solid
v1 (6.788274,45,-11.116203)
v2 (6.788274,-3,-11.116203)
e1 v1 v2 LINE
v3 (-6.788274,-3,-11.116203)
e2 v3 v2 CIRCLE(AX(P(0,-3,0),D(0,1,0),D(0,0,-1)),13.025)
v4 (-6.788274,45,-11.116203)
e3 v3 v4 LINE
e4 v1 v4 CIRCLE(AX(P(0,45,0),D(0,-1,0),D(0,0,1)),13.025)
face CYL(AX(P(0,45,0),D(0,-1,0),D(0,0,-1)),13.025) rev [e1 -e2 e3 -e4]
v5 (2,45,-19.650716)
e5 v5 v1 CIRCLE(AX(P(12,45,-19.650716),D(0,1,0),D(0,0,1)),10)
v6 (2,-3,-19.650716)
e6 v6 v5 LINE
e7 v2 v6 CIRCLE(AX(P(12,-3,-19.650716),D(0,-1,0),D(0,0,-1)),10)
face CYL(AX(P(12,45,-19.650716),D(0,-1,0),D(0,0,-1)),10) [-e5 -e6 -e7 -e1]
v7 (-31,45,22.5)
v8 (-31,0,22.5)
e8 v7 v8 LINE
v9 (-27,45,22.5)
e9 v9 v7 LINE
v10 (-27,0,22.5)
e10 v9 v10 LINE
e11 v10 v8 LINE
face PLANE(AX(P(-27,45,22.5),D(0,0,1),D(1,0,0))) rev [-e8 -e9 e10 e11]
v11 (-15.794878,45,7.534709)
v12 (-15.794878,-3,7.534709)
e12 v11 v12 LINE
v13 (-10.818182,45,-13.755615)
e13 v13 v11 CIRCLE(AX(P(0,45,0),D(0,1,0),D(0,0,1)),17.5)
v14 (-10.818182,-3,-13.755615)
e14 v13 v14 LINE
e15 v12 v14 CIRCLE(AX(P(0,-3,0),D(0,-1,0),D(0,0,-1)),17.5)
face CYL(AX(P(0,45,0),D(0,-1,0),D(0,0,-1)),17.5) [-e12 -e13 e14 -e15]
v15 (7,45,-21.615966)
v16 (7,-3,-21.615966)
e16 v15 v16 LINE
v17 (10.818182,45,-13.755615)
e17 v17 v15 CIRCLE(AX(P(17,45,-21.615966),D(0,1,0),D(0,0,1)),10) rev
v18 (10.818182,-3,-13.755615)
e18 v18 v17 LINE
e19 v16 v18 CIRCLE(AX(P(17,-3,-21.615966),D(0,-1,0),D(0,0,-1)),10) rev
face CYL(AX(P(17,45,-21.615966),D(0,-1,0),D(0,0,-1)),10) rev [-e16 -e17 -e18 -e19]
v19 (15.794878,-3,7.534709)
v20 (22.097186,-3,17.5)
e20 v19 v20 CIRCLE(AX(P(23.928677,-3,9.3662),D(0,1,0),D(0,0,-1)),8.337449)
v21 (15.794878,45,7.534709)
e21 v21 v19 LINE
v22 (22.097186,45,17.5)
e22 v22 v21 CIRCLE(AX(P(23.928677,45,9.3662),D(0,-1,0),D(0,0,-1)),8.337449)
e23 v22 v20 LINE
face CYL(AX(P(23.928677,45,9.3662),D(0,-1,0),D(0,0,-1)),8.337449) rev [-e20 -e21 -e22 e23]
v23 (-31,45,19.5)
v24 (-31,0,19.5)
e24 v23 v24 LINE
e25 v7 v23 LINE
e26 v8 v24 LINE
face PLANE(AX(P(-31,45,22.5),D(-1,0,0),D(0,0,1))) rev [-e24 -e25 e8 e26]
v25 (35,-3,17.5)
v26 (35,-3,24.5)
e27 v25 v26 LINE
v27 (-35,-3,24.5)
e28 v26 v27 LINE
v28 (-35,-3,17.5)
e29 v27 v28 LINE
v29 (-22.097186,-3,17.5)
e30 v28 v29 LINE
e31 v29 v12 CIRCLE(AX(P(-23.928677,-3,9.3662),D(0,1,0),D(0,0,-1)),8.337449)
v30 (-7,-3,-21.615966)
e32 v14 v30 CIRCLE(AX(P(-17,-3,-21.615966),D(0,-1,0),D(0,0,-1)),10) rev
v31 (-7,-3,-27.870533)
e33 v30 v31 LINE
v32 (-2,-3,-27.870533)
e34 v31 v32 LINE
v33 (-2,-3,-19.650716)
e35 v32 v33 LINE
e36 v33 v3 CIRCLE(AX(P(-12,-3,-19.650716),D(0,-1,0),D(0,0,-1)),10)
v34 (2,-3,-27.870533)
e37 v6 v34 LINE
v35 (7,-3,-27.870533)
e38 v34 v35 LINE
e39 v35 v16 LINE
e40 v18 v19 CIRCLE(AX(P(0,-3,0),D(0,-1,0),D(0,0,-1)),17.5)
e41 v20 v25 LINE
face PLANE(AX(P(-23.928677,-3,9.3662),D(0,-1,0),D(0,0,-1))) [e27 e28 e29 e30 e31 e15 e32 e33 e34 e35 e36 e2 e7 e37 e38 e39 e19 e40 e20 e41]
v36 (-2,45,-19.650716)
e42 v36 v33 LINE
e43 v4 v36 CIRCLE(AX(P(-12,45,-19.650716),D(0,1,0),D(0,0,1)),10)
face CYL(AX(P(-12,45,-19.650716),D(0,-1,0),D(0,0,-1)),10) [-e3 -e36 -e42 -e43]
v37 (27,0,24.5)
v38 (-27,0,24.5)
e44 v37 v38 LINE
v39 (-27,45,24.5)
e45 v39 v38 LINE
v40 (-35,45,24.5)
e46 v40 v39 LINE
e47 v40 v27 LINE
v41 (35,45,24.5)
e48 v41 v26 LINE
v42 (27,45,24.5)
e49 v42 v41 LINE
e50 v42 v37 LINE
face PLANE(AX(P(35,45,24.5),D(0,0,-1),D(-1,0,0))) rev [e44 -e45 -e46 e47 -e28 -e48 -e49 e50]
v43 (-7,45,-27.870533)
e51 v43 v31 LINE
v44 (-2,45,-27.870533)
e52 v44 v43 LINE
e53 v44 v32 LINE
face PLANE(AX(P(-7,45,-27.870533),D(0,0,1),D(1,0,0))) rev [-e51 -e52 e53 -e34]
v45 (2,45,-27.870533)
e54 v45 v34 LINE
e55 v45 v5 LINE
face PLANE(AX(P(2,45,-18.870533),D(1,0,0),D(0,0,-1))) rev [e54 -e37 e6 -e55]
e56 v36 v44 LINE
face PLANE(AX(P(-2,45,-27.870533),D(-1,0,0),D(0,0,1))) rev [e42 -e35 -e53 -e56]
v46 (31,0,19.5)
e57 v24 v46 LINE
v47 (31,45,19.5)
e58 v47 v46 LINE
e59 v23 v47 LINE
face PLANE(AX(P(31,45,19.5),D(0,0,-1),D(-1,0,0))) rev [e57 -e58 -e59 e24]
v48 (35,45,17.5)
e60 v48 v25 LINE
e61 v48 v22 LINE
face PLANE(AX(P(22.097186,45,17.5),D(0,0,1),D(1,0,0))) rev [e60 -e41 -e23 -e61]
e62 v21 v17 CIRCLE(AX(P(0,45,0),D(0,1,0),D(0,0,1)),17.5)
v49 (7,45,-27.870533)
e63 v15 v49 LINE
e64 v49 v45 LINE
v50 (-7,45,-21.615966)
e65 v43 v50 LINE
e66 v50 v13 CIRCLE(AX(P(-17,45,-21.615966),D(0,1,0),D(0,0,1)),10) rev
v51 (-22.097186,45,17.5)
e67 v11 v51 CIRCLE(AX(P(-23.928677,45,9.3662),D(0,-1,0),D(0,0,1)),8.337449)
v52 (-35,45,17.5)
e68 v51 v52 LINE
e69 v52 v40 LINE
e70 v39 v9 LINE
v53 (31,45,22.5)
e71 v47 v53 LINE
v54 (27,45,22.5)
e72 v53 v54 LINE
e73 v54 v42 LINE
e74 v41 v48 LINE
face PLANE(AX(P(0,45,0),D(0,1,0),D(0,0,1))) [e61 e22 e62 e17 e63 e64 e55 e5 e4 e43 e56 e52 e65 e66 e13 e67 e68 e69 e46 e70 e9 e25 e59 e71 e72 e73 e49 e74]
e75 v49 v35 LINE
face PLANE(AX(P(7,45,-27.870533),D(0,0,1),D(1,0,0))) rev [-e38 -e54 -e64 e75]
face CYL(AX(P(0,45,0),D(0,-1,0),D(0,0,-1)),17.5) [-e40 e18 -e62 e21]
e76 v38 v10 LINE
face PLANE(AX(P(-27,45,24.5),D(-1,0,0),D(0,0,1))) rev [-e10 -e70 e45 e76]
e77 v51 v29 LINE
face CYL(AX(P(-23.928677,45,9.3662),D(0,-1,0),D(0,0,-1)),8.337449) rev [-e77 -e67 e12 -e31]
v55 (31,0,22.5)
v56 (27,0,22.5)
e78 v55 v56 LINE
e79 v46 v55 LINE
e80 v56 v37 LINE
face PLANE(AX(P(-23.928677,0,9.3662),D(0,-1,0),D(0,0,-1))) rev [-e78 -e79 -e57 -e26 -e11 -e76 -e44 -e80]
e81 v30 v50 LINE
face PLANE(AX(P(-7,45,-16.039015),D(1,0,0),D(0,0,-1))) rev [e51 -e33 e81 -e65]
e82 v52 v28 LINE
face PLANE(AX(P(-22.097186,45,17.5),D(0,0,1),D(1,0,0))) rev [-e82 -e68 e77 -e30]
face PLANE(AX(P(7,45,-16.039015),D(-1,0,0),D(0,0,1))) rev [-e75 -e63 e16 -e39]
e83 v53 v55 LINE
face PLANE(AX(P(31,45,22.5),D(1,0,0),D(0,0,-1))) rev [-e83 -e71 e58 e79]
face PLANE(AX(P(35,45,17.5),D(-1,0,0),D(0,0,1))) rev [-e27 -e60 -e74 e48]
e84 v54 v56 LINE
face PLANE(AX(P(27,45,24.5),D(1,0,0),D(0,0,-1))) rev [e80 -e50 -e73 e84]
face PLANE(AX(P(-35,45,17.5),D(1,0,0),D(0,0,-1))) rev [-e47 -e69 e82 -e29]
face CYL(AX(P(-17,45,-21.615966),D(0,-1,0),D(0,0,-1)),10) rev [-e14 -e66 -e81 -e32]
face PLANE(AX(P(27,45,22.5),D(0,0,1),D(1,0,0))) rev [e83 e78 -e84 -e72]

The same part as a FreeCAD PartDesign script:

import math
import FreeCAD as App
import Part
import Sketcher
from FreeCAD import Vector


def edges_at(feature, points):
    """Names of the edges that pass closest to the given points."""
    edges = feature.Shape.Edges
    near = lambda p: min(range(len(edges)), key=lambda i: edges[i].distToShape(Part.Vertex(*p))[0])
    return sorted({f"Edge{near(p) + 1}" for p in points})

doc = App.newDocument("Part")
body = doc.addObject("PartDesign::Body", "Body")

# Sketch on XZ plane
sketch1 = body.newObject("Sketcher::SketchObject", "Sketch")
sketch1.AttachmentSupport = (doc.getObject("XZ_Plane"), [""])
sketch1.MapMode = "FlatFace"
sketch1.addGeometry(Part.LineSegment(Vector(-7, -27.870533, 0), Vector(-7, -16.039015, 0)), False)
sketch1.addGeometry(Part.ArcOfCircle(Part.Circle(Vector(0, 0, 0), Vector(0, 0, 1), 17.5), math.radians(154.497225), math.radians(246.421822)), False)
sketch1.addGeometry(Part.ArcOfCircle(Part.Circle(Vector(-23.928677, 9.3662, 0), Vector(0, 0, 1), 8.337449), math.radians(-12.689678), math.radians(77.310322)), False)
sketch1.addGeometry(Part.LineSegment(Vector(-22.097186, 17.5, 0), Vector(-35, 17.5, 0)), False)
sketch1.addGeometry(Part.LineSegment(Vector(-35, 17.5, 0), Vector(-35, 24.5, 0)), False)
sketch1.addGeometry(Part.LineSegment(Vector(-35, 24.5, 0), Vector(-27, 24.5, 0)), False)
sketch1.addGeometry(Part.LineSegment(Vector(-27, 24.5, 0), Vector(-27, 22.5, 0)), False)
sketch1.addGeometry(Part.LineSegment(Vector(-27, 22.5, 0), Vector(-31, 22.5, 0)), False)
sketch1.addGeometry(Part.LineSegment(Vector(-31, 22.5, 0), Vector(-31, 19.5, 0)), False)
sketch1.addGeometry(Part.LineSegment(Vector(-31, 19.5, 0), Vector(31, 19.5, 0)), False)
sketch1.addGeometry(Part.LineSegment(Vector(31, 19.5, 0), Vector(31, 22.5, 0)), False)
sketch1.addGeometry(Part.LineSegment(Vector(31, 22.5, 0), Vector(27, 22.5, 0)), False)
sketch1.addGeometry(Part.LineSegment(Vector(27, 22.5, 0), Vector(27, 24.5, 0)), False)
sketch1.addGeometry(Part.LineSegment(Vector(27, 24.5, 0), Vector(35, 24.5, 0)), False)
sketch1.addGeometry(Part.LineSegment(Vector(35, 24.5, 0), Vector(35, 17.5, 0)), False)
sketch1.addGeometry(Part.LineSegment(Vector(35, 17.5, 0), Vector(22.097186, 17.5, 0)), False)
sketch1.addGeometry(Part.ArcOfCircle(Part.Circle(Vector(23.928677, 9.3662, 0), Vector(0, 0, 1), 8.337449), math.radians(102.689678), math.radians(192.689678)), False)
sketch1.addGeometry(Part.ArcOfCircle(Part.Circle(Vector(0, 0, 0), Vector(0, 0, 1), 17.5), math.radians(-66.421822), math.radians(25.502775)), False)
sketch1.addGeometry(Part.LineSegment(Vector(7, -16.039015, 0), Vector(7, -27.870533, 0)), False)
sketch1.addGeometry(Part.LineSegment(Vector(7, -27.870533, 0), Vector(2, -27.870533, 0)), False)
sketch1.addGeometry(Part.LineSegment(Vector(2, -27.870533, 0), Vector(2, -12.870533, 0)), False)
sketch1.addGeometry(Part.ArcOfCircle(Part.Circle(Vector(0, 0, 0), Vector(0, 0, 1), 13.025), math.radians(-81.167239), math.radians(261.167239)), False)
sketch1.addGeometry(Part.LineSegment(Vector(-2, -12.870533, 0), Vector(-2, -27.870533, 0)), False)
sketch1.addGeometry(Part.LineSegment(Vector(-2, -27.870533, 0), Vector(-7, -27.870533, 0)), False)
sketch1.addConstraint(Sketcher.Constraint("Coincident", 0, 2, 1, 2))
sketch1.addConstraint(Sketcher.Constraint("Coincident", 1, 1, 2, 1))
sketch1.addConstraint(Sketcher.Constraint("Coincident", 2, 2, 3, 1))
sketch1.addConstraint(Sketcher.Constraint("Coincident", 3, 2, 4, 1))
sketch1.addConstraint(Sketcher.Constraint("Coincident", 4, 2, 5, 1))
sketch1.addConstraint(Sketcher.Constraint("Coincident", 5, 2, 6, 1))
sketch1.addConstraint(Sketcher.Constraint("Coincident", 6, 2, 7, 1))
sketch1.addConstraint(Sketcher.Constraint("Coincident", 7, 2, 8, 1))
sketch1.addConstraint(Sketcher.Constraint("Coincident", 8, 2, 9, 1))
sketch1.addConstraint(Sketcher.Constraint("Coincident", 9, 2, 10, 1))
sketch1.addConstraint(Sketcher.Constraint("Coincident", 10, 2, 11, 1))
sketch1.addConstraint(Sketcher.Constraint("Coincident", 11, 2, 12, 1))
sketch1.addConstraint(Sketcher.Constraint("Coincident", 12, 2, 13, 1))
sketch1.addConstraint(Sketcher.Constraint("Coincident", 13, 2, 14, 1))
sketch1.addConstraint(Sketcher.Constraint("Coincident", 14, 2, 15, 1))
sketch1.addConstraint(Sketcher.Constraint("Coincident", 15, 2, 16, 1))
sketch1.addConstraint(Sketcher.Constraint("Coincident", 16, 2, 17, 2))
sketch1.addConstraint(Sketcher.Constraint("Coincident", 17, 1, 18, 1))
sketch1.addConstraint(Sketcher.Constraint("Coincident", 18, 2, 19, 1))
sketch1.addConstraint(Sketcher.Constraint("Coincident", 19, 2, 20, 1))
sketch1.addConstraint(Sketcher.Constraint("Coincident", 20, 2, 21, 1))
sketch1.addConstraint(Sketcher.Constraint("Coincident", 21, 2, 22, 1))
sketch1.addConstraint(Sketcher.Constraint("Coincident", 22, 2, 23, 1))
sketch1.addConstraint(Sketcher.Constraint("Coincident", 23, 2, 0, 1))
sketch1.addConstraint(Sketcher.Constraint("Vertical", 0))
sketch1.addConstraint(Sketcher.Constraint("Horizontal", 3))
sketch1.addConstraint(Sketcher.Constraint("Vertical", 4))
sketch1.addConstraint(Sketcher.Constraint("Horizontal", 5))
sketch1.addConstraint(Sketcher.Constraint("Vertical", 6))
sketch1.addConstraint(Sketcher.Constraint("Horizontal", 7))
sketch1.addConstraint(Sketcher.Constraint("Vertical", 8))
sketch1.addConstraint(Sketcher.Constraint("Horizontal", 9))
sketch1.addConstraint(Sketcher.Constraint("Vertical", 10))
sketch1.addConstraint(Sketcher.Constraint("Horizontal", 11))
sketch1.addConstraint(Sketcher.Constraint("Vertical", 12))
sketch1.addConstraint(Sketcher.Constraint("Horizontal", 13))
sketch1.addConstraint(Sketcher.Constraint("Vertical", 14))
sketch1.addConstraint(Sketcher.Constraint("Horizontal", 15))
sketch1.addConstraint(Sketcher.Constraint("Vertical", 18))
sketch1.addConstraint(Sketcher.Constraint("Horizontal", 19))
sketch1.addConstraint(Sketcher.Constraint("Vertical", 20))
sketch1.addConstraint(Sketcher.Constraint("Vertical", 22))
sketch1.addConstraint(Sketcher.Constraint("Horizontal", 23))
sketch1.addConstraint(Sketcher.Constraint("Coincident", 1, 3, -1, 1))
sketch1.addConstraint(Sketcher.Constraint("Coincident", 17, 3, -1, 1))
sketch1.addConstraint(Sketcher.Constraint("Coincident", 21, 3, -1, 1))
sketch1.addConstraint(Sketcher.Constraint("Equal", 2, 16))
sketch1.addConstraint(Sketcher.Constraint("Equal", 1, 17))
sketch1.addConstraint(Sketcher.Constraint("Symmetric", 2, 3, 16, 3, -2))
sketch1.addConstraint(Sketcher.Constraint("Symmetric", 7, 2, 10, 2, -2))
sketch1.addConstraint(Sketcher.Constraint("Symmetric", 5, 2, 12, 2, -2))
sketch1.addConstraint(Sketcher.Constraint("Symmetric", 3, 2, 14, 2, -2))
sketch1.addConstraint(Sketcher.Constraint("Symmetric", 19, 2, 22, 2, -2))
sketch1.addConstraint(Sketcher.Constraint("Horizontal", 0, 2, 17, 1))
sketch1.addConstraint(Sketcher.Constraint("Radius", 1, 17.5))
sketch1.addConstraint(Sketcher.Constraint("DistanceX", 5, 1, 5, 2, 8.0))
sketch1.addConstraint(Sketcher.Constraint("DistanceX", 7, 2, 7, 1, 4.0))
sketch1.addConstraint(Sketcher.Constraint("DistanceX", 9, 1, 9, 2, 62.0))
sketch1.addConstraint(Sketcher.Constraint("DistanceX", 19, 2, 19, 1, 5.0))
sketch1.addConstraint(Sketcher.Constraint("DistanceY", 4, 1, 4, 2, 7.0))
sketch1.addConstraint(Sketcher.Constraint("DistanceY", 6, 2, 6, 1, 2.0))
sketch1.addConstraint(Sketcher.Constraint("DistanceY", 8, 2, 8, 1, 3.0))
sketch1.addConstraint(Sketcher.Constraint("DistanceY", 20, 1, 20, 2, 15.0))
sketch1.addConstraint(Sketcher.Constraint("DistanceX", 0, 2, -1, 1, 7.0))
sketch1.addConstraint(Sketcher.Constraint("Radius", 21, 13.025))
sketch1.addConstraint(Sketcher.Constraint("DistanceY", -1, 1, 2, 2, 17.5))
sketch1.addConstraint(Sketcher.Constraint("Radius", 2, 8.337449))
sketch1.addConstraint(Sketcher.Constraint("DistanceY", -1, 1, 2, 3, 9.3662))
sketch1.addConstraint(Sketcher.Constraint("DistanceX", 2, 3, 1, 1, 8.1338))
pad1 = body.newObject("PartDesign::Pad", "Pad")
pad1.Profile = sketch1
pad1.Length = 45
pad1.Reversed = True
doc.recompute()

fillet = body.newObject("PartDesign::Fillet", "Fillet")
fillet.Base = (pad1, edges_at(pad1, [(-2, 22.5, -12.871), (2, 22.5, -12.871)]))
fillet.Radius = 10

# Sketch on XZ plane
sketch2 = body.newObject("Sketcher::SketchObject", "Sketch001")
sketch2.AttachmentSupport = (doc.getObject("XZ_Plane"), [""])
sketch2.MapMode = "FlatFace"
sketch2.AttachmentOffset = App.Placement(Vector(0, 0, 3), App.Rotation())
sketch2.addGeometry(Part.LineSegment(Vector(35, 24.5, 0), Vector(-35, 24.5, 0)), False)
sketch2.addGeometry(Part.LineSegment(Vector(-35, 24.5, 0), Vector(-35, 17.5, 0)), False)
sketch2.addGeometry(Part.LineSegment(Vector(-35, 17.5, 0), Vector(-22.097186, 17.5, 0)), False)
sketch2.addGeometry(Part.ArcOfCircle(Part.Circle(Vector(-23.928677, 9.3662, 0), Vector(0, 0, 1), 8.337449), math.radians(-12.689678), math.radians(77.310322)), False)
sketch2.addGeometry(Part.ArcOfCircle(Part.Circle(Vector(0, 0, 0), Vector(0, 0, 1), 17.5), math.radians(154.497225), math.radians(246.421822)), False)
sketch2.addGeometry(Part.LineSegment(Vector(-7, -16.039015, 0), Vector(-7, -27.870533, 0)), False)
sketch2.addGeometry(Part.LineSegment(Vector(-7, -27.870533, 0), Vector(-2, -27.870533, 0)), False)
sketch2.addGeometry(Part.LineSegment(Vector(-2, -27.870533, 0), Vector(-2, -19.650716, 0)), False)
sketch2.addGeometry(Part.ArcOfCircle(Part.Circle(Vector(-12, -19.650716, 0), Vector(0, 0, 1), 10), math.radians(0), math.radians(58.589057)), False)
sketch2.addGeometry(Part.ArcOfCircle(Part.Circle(Vector(0, 0, 0), Vector(0, 0, 1), 13.025), math.radians(-58.589057), math.radians(238.589057)), False)
sketch2.addGeometry(Part.ArcOfCircle(Part.Circle(Vector(12, -19.650716, 0), Vector(0, 0, 1), 10), math.radians(121.410943), math.radians(180)), False)
sketch2.addGeometry(Part.LineSegment(Vector(2, -19.650716, 0), Vector(2, -27.870533, 0)), False)
sketch2.addGeometry(Part.LineSegment(Vector(2, -27.870533, 0), Vector(7, -27.870533, 0)), False)
sketch2.addGeometry(Part.LineSegment(Vector(7, -27.870533, 0), Vector(7, -16.039015, 0)), False)
sketch2.addGeometry(Part.ArcOfCircle(Part.Circle(Vector(0, 0, 0), Vector(0, 0, 1), 17.5), math.radians(-66.421822), math.radians(25.502775)), False)
sketch2.addGeometry(Part.ArcOfCircle(Part.Circle(Vector(23.928677, 9.3662, 0), Vector(0, 0, 1), 8.337449), math.radians(102.689678), math.radians(192.689678)), False)
sketch2.addGeometry(Part.LineSegment(Vector(22.097186, 17.5, 0), Vector(35, 17.5, 0)), False)
sketch2.addGeometry(Part.LineSegment(Vector(35, 17.5, 0), Vector(35, 24.5, 0)), False)
sketch2.addConstraint(Sketcher.Constraint("Coincident", 0, 2, 1, 1))
sketch2.addConstraint(Sketcher.Constraint("Coincident", 1, 2, 2, 1))
sketch2.addConstraint(Sketcher.Constraint("Coincident", 2, 2, 3, 2))
sketch2.addConstraint(Sketcher.Constraint("Coincident", 3, 1, 4, 1))
sketch2.addConstraint(Sketcher.Constraint("Coincident", 4, 2, 5, 1))
sketch2.addConstraint(Sketcher.Constraint("Coincident", 5, 2, 6, 1))
sketch2.addConstraint(Sketcher.Constraint("Coincident", 6, 2, 7, 1))
sketch2.addConstraint(Sketcher.Constraint("Tangent", 7, 2, 8, 1))
sketch2.addConstraint(Sketcher.Constraint("Tangent", 8, 2, 9, 2))
sketch2.addConstraint(Sketcher.Constraint("Tangent", 9, 1, 10, 1))
sketch2.addConstraint(Sketcher.Constraint("Tangent", 10, 2, 11, 1))
sketch2.addConstraint(Sketcher.Constraint("Coincident", 11, 2, 12, 1))
sketch2.addConstraint(Sketcher.Constraint("Coincident", 12, 2, 13, 1))
sketch2.addConstraint(Sketcher.Constraint("Coincident", 13, 2, 14, 1))
sketch2.addConstraint(Sketcher.Constraint("Coincident", 14, 2, 15, 2))
sketch2.addConstraint(Sketcher.Constraint("Coincident", 15, 1, 16, 1))
sketch2.addConstraint(Sketcher.Constraint("Coincident", 16, 2, 17, 1))
sketch2.addConstraint(Sketcher.Constraint("Coincident", 17, 2, 0, 1))
sketch2.addConstraint(Sketcher.Constraint("Horizontal", 0))
sketch2.addConstraint(Sketcher.Constraint("Vertical", 1))
sketch2.addConstraint(Sketcher.Constraint("Horizontal", 2))
sketch2.addConstraint(Sketcher.Constraint("Vertical", 5))
sketch2.addConstraint(Sketcher.Constraint("Horizontal", 6))
sketch2.addConstraint(Sketcher.Constraint("Vertical", 7))
sketch2.addConstraint(Sketcher.Constraint("Vertical", 11))
sketch2.addConstraint(Sketcher.Constraint("Horizontal", 12))
sketch2.addConstraint(Sketcher.Constraint("Vertical", 13))
sketch2.addConstraint(Sketcher.Constraint("Horizontal", 16))
sketch2.addConstraint(Sketcher.Constraint("Vertical", 17))
sketch2.addConstraint(Sketcher.Constraint("Coincident", 4, 3, -1, 1))
sketch2.addConstraint(Sketcher.Constraint("Coincident", 9, 3, -1, 1))
sketch2.addConstraint(Sketcher.Constraint("Coincident", 14, 3, -1, 1))
sketch2.addConstraint(Sketcher.Constraint("Equal", 8, 10))
sketch2.addConstraint(Sketcher.Constraint("Equal", 4, 14))
sketch2.addConstraint(Sketcher.Constraint("Equal", 3, 15))
sketch2.addConstraint(Sketcher.Constraint("Symmetric", 3, 3, 15, 3, -2))
sketch2.addConstraint(Sketcher.Constraint("Symmetric", 6, 2, 11, 2, -2))
sketch2.addConstraint(Sketcher.Constraint("Symmetric", 1, 2, 16, 2, -2))
sketch2.addConstraint(Sketcher.Constraint("Horizontal", 4, 2, 13, 2))
sketch2.addConstraint(Sketcher.Constraint("Radius", 8, 10.0))
sketch2.addConstraint(Sketcher.Constraint("Radius", 4, 17.5))
sketch2.addConstraint(Sketcher.Constraint("DistanceX", 0, 2, 0, 1, 70.0))
sketch2.addConstraint(Sketcher.Constraint("DistanceX", 6, 1, 6, 2, 5.0))
sketch2.addConstraint(Sketcher.Constraint("DistanceY", 1, 2, 1, 1, 7.0))
sketch2.addConstraint(Sketcher.Constraint("DistanceX", 8, 3, -1, 1, 12.0))
sketch2.addConstraint(Sketcher.Constraint("Radius", 9, 13.025))
sketch2.addConstraint(Sketcher.Constraint("DistanceY", -1, 1, 0, 2, 24.5))
sketch2.addConstraint(Sketcher.Constraint("Radius", 3, 8.337449))
sketch2.addConstraint(Sketcher.Constraint("DistanceY", 5, 2, 5, 1, 11.831518))
sketch2.addConstraint(Sketcher.Constraint("DistanceY", -1, 1, 3, 3, 9.3662))
sketch2.addConstraint(Sketcher.Constraint("DistanceX", 3, 3, 3, 1, 8.1338))
pad2 = body.newObject("PartDesign::Pad", "Pad001")
pad2.Profile = sketch2
pad2.Length = 3
pad2.Reversed = True
doc.recompute()

fillet2 = body.newObject("PartDesign::Fillet", "Fillet001")
fillet2.Base = (pad2, edges_at(pad2, [(7, 21, -16.039), (-7, 21, -16.039)]))
fillet2.Radius = 10

doc.recompute()
